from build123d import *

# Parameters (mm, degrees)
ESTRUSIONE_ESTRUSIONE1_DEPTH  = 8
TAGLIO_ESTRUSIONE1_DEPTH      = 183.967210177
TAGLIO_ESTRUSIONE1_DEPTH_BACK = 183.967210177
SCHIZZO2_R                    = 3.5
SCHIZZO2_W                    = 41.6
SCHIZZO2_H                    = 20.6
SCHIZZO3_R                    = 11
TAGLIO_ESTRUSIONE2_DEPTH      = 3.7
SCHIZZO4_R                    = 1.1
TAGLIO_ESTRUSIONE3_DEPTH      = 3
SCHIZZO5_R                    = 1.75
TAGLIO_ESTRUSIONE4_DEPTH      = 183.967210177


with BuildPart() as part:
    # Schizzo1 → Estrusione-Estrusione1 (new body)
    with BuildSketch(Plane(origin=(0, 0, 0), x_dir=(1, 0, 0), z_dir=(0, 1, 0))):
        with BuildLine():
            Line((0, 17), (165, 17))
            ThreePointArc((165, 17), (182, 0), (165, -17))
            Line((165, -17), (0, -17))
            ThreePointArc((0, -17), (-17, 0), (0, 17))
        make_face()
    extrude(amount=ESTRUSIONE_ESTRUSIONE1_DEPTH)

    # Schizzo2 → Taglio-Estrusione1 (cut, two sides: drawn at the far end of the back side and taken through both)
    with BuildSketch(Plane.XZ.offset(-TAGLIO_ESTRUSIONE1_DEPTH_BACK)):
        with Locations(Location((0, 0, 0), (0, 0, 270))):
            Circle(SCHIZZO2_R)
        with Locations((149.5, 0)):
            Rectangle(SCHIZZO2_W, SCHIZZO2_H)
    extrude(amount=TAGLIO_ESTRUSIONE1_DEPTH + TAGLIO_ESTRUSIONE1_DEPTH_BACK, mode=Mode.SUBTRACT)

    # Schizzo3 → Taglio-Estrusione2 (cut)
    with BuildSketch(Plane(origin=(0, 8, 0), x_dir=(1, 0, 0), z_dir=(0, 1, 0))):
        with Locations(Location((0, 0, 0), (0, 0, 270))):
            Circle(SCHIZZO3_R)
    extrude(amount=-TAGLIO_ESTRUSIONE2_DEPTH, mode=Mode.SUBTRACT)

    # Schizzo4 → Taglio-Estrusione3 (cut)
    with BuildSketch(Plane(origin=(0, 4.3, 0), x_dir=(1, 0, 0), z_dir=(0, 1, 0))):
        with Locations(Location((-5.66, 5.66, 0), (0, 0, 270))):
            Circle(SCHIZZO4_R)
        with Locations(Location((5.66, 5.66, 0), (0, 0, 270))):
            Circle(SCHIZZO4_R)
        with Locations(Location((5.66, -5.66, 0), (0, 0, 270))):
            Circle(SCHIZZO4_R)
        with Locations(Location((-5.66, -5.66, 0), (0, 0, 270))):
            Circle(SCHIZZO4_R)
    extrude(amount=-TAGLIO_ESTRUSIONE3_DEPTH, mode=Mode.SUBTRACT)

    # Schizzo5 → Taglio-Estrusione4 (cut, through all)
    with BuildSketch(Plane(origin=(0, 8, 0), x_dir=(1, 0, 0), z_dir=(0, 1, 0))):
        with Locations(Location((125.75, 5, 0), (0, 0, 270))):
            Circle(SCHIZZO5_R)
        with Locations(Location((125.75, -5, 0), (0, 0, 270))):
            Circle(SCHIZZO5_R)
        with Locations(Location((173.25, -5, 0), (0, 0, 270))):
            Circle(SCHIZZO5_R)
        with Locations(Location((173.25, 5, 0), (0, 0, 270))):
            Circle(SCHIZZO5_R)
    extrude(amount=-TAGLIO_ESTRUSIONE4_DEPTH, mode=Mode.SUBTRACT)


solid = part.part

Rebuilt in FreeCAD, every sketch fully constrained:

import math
import FreeCAD as App
import Part
import Sketcher

V = App.Vector

doc = App.newDocument("Part")
body = doc.addObject("PartDesign::Body", "Body")

# Sketch on XZ plane
sketch1 = body.newObject("Sketcher::SketchObject", "Sketch")
sketch1.AttachmentSupport = (doc.getObject("XZ_Plane"), [""])
sketch1.MapMode = "FlatFace"
sketch1.addGeometry([
    Part.LineSegment(V(165, -17, 0), V(0, -17, 0)),
    Part.ArcOfCircle(Part.Circle(V(0, 0, 0), V(0, 0, 1), 17), math.radians(90), math.radians(270)),
    Part.LineSegment(V(0, 17, 0), V(165, 17, 0)),
    Part.ArcOfCircle(Part.Circle(V(165, 0, 0), V(0, 0, 1), 17), math.radians(-90), math.radians(90)),
], False)
sketch1.addConstraint([
    Sketcher.Constraint("Tangent", 0, 2, 1, 2),
    Sketcher.Constraint("Tangent", 1, 1, 2, 1),
    Sketcher.Constraint("Tangent", 2, 2, 3, 2),
    Sketcher.Constraint("Tangent", 3, 1, 0, 1),
    Sketcher.Constraint("Horizontal", 0),
    Sketcher.Constraint("Horizontal", 2),
    Sketcher.Constraint("Coincident", 1, 3, -1, 1),
    Sketcher.Constraint("Radius", 1, 17.0),
    Sketcher.Constraint("DistanceX", 0, 2, 0, 1, 165.0),
])
pad1 = body.newObject("PartDesign::Pad", "Pad")
pad1.Profile = sketch1
pad1.Length = 8
pad1.Reversed = True

# Sketch on XZ plane
sketch2 = body.newObject("Sketcher::SketchObject", "Sketch001")
sketch2.AttachmentSupport = (doc.getObject("XZ_Plane"), [""])
sketch2.MapMode = "FlatFace"
sketch2.addGeometry([
    Part.Circle(V(0, 0, 0), V(0, 0, 1), 3.5),  # 0
    Part.LineSegment(V(128.7, 10.3, 0), V(128.7, -10.3, 0)),  # 1
    Part.LineSegment(V(128.7, -10.3, 0), V(170.3, -10.3, 0)),  # 2
    Part.LineSegment(V(170.3, -10.3, 0), V(170.3, 10.3, 0)),  # 3
    Part.LineSegment(V(170.3, 10.3, 0), V(128.7, 10.3, 0)),  # 4
], False)
sketch2.addConstraint([
    Sketcher.Constraint("Coincident", 1, 2, 2, 1),
    Sketcher.Constraint("Coincident", 2, 2, 3, 1),
    Sketcher.Constraint("Coincident", 3, 2, 4, 1),
    Sketcher.Constraint("Coincident", 4, 2, 1, 1),
    Sketcher.Constraint("Vertical", 1),
    Sketcher.Constraint("Horizontal", 2),
    Sketcher.Constraint("Vertical", 3),
    Sketcher.Constraint("Horizontal", 4),
    Sketcher.Constraint("Coincident", 0, 3, -1, 1),
    Sketcher.Constraint("Diameter", 0, 7.0),
    Sketcher.Constraint("DistanceX", 2, 1, 2, 2, 41.6),
    Sketcher.Constraint("DistanceY", 1, 2, 1, 1, 20.6),
    Sketcher.Constraint("DistanceX", -1, 1, 1, 2, 128.7),
    Sketcher.Constraint("DistanceY", 1, 2, -1, 1, 10.3),
])
pocket1 = body.newObject("PartDesign::Pocket", "Pocket")
pocket1.Profile = sketch2
pocket1.Type = "ThroughAll"
pocket1.Midplane = True

# Sketch on XZ plane
sketch3 = body.newObject("Sketcher::SketchObject", "Sketch002")
sketch3.AttachmentSupport = (doc.getObject("XZ_Plane"), [""])
sketch3.MapMode = "FlatFace"
sketch3.AttachmentOffset = App.Placement(V(0, 0, -8), App.Rotation())
sketch3.addGeometry(Part.Circle(V(0, 0, 0), V(0, 0, 1), 11), False)
sketch3.addConstraint([
    Sketcher.Constraint("Coincident", 0, 3, -1, 1),
    Sketcher.Constraint("Diameter", 0, 22.0),
])
pocket2 = body.newObject("PartDesign::Pocket", "Pocket001")
pocket2.Profile = sketch3
pocket2.Length = 3.7
pocket2.Reversed = True

# Sketch on XZ plane
sketch4 = body.newObject("Sketcher::SketchObject", "Sketch003")
sketch4.AttachmentSupport = (doc.getObject("XZ_Plane"), [""])
sketch4.MapMode = "FlatFace"
sketch4.AttachmentOffset = App.Placement(V(0, 0, -4.3), App.Rotation())
sketch4.addGeometry([
    Part.Circle(V(-5.7, -5.7, 0), V(0, 0, 1), 1.1),
    Part.Circle(V(5.7, -5.7, 0), V(0, 0, 1), 1.1),
    Part.Circle(V(5.7, 5.7, 0), V(0, 0, 1), 1.1),
    Part.Circle(V(-5.7, 5.7, 0), V(0, 0, 1), 1.1),
], False)
sketch4.addConstraint([
    Sketcher.Constraint("Equal", 0, 1),
    Sketcher.Constraint("Equal", 1, 2),
    Sketcher.Constraint("Equal", 2, 3),
    Sketcher.Constraint("Symmetric", 0, 3, 2, 3, -1, 1),
    Sketcher.Constraint("Symmetric", 1, 3, 3, 3, -1, 1),
    Sketcher.Constraint("Symmetric", 0, 3, 1, 3, -2),
    Sketcher.Constraint("Diameter", 0, 2.2),
    Sketcher.Constraint("DistanceX", 0, 3, -1, 1, 5.66),
    Sketcher.Constraint("DistanceY", 0, 3, -1, 1, 5.66),
])
pocket3 = body.newObject("PartDesign::Pocket", "Pocket002")
pocket3.Profile = sketch4
pocket3.Length = 3
pocket3.Reversed = True

# Sketch on XZ plane
sketch5 = body.newObject("Sketcher::SketchObject", "Sketch004")
sketch5.AttachmentSupport = (doc.getObject("XZ_Plane"), [""])
sketch5.MapMode = "FlatFace"
sketch5.AttachmentOffset = App.Placement(V(0, 0, -8), App.Rotation())
sketch5.addGeometry([
    Part.Circle(V(125.8, -5, 0), V(0, 0, 1), 1.8),
    Part.Circle(V(125.8, 5, 0), V(0, 0, 1), 1.8),
    Part.Circle(V(173.2, 5, 0), V(0, 0, 1), 1.8),
    Part.Circle(V(173.2, -5, 0), V(0, 0, 1), 1.8),
], False)
sketch5.addConstraint([
    Sketcher.Constraint("Equal", 0, 1),
    Sketcher.Constraint("Equal", 1, 2),
    Sketcher.Constraint("Equal", 2, 3),
    Sketcher.Constraint("Symmetric", 0, 3, 1, 3, -1),
    Sketcher.Constraint("Symmetric", 2, 3, 3, 3, -1),
    Sketcher.Constraint("Horizontal", 1, 3, 2, 3),
    Sketcher.Constraint("Diameter", 0, 3.5),
    Sketcher.Constraint("DistanceY", 0, 3, -1, 1, 5.0),
    Sketcher.Constraint("DistanceX", 1, 3, 2, 3, 47.5),
    Sketcher.Constraint("DistanceX", -1, 1, 0, 3, 125.75),
])
pocket4 = body.newObject("PartDesign::Pocket", "Pocket003")
pocket4.Profile = sketch5
pocket4.Type = "ThroughAll"
pocket4.Reversed = True

doc.recompute()
